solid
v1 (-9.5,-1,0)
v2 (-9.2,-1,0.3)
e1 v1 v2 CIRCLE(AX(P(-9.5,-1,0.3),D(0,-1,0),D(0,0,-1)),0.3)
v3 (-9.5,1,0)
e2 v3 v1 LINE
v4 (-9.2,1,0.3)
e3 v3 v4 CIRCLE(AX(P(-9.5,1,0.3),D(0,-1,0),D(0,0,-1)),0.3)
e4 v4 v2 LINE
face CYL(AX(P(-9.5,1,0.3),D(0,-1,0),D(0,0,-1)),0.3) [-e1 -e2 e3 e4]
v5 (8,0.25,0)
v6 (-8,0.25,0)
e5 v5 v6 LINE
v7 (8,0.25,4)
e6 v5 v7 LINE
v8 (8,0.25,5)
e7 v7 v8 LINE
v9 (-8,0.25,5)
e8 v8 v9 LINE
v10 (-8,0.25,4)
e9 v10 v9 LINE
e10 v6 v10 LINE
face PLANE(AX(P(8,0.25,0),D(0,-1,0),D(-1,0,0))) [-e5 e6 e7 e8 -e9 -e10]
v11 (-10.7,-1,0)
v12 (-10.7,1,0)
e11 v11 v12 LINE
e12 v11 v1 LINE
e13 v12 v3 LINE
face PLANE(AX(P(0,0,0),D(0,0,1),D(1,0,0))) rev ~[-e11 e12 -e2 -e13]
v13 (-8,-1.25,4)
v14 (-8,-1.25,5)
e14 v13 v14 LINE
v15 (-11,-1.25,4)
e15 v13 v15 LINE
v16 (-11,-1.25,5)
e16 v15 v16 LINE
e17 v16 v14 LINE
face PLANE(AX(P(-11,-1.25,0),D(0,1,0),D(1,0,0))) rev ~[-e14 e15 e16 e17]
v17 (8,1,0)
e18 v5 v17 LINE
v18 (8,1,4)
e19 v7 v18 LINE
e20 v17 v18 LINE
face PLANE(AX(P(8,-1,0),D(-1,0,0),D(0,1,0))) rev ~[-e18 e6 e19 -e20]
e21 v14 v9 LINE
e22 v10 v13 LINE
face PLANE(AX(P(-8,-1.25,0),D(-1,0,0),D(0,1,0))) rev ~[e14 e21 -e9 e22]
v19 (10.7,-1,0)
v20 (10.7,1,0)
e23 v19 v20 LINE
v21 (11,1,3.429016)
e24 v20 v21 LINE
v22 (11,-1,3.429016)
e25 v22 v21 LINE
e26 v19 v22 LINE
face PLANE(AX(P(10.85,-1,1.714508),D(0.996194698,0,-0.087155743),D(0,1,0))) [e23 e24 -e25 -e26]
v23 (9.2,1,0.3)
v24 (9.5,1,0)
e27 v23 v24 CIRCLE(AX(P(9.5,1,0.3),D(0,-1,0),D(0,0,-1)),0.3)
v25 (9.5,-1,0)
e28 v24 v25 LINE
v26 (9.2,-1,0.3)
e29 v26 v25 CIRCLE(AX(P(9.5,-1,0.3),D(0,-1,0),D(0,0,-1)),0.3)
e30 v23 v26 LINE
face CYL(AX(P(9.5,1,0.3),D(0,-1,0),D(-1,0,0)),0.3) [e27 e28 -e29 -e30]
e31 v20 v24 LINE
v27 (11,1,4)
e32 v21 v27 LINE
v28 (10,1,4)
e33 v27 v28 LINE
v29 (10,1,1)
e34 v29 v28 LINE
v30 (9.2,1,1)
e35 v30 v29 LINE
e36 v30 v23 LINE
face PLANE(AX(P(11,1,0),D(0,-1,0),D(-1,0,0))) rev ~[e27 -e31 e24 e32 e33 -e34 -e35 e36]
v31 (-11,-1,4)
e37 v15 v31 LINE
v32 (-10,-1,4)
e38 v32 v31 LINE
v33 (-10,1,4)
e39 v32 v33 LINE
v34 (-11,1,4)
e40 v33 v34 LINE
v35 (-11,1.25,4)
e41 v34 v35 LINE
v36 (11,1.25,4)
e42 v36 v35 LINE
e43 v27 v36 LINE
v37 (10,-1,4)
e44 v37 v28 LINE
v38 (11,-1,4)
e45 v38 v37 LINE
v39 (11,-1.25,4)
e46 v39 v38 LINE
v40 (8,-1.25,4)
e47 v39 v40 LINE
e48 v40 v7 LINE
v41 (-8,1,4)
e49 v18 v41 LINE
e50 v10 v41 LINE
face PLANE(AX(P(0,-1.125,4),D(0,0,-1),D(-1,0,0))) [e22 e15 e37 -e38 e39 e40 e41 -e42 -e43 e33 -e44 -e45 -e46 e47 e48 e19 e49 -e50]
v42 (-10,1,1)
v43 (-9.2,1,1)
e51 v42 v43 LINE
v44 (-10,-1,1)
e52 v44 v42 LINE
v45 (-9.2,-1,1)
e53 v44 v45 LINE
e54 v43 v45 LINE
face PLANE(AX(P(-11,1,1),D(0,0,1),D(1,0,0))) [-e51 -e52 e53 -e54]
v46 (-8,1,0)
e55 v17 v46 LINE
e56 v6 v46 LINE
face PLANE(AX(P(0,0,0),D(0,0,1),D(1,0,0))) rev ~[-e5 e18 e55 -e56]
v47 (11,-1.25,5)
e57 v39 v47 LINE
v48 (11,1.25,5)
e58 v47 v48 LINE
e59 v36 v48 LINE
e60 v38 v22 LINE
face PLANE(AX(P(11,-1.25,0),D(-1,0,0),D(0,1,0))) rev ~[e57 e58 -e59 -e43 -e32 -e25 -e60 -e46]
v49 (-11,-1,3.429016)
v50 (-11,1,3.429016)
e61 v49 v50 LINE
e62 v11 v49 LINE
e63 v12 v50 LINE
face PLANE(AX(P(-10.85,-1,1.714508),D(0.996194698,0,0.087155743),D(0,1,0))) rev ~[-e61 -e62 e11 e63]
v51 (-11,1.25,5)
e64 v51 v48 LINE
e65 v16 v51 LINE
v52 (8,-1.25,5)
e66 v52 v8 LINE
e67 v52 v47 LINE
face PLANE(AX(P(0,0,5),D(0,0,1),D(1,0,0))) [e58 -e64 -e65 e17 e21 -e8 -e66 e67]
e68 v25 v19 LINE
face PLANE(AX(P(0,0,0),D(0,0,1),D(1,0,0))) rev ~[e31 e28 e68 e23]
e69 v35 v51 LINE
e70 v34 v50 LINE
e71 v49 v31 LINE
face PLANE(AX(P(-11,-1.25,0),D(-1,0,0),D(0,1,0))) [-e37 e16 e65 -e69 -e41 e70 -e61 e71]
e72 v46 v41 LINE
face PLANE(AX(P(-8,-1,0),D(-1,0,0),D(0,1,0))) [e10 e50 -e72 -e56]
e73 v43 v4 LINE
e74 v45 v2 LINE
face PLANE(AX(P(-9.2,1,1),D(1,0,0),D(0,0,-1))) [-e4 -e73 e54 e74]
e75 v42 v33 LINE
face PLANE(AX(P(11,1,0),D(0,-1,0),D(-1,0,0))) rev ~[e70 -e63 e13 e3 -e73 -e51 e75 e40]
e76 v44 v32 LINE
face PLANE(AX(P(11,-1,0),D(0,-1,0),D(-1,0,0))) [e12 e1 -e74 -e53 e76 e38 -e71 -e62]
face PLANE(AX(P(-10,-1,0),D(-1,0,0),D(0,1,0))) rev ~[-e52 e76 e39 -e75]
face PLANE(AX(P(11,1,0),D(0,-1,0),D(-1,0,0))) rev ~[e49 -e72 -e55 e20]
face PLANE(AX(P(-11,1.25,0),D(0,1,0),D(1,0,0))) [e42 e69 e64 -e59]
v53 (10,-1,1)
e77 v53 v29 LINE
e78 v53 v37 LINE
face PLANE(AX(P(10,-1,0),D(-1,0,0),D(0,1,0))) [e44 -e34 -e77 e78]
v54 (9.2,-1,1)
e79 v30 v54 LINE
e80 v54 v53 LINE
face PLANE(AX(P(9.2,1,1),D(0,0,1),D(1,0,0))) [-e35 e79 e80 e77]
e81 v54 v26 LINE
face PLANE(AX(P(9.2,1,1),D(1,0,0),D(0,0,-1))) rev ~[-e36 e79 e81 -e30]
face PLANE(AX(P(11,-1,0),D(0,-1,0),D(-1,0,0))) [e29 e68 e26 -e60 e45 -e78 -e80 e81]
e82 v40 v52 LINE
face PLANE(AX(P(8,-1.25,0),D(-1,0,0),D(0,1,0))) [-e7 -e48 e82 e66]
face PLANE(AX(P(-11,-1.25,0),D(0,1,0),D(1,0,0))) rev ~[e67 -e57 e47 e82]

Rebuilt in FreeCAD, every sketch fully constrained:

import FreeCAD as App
import Part
import Sketcher
from FreeCAD import Vector
Q = App.Units.Quantity


def edges_at(feature, points):
    """Names of the edges that pass closest to the given points."""
    edges = feature.Shape.Edges
    near = lambda p: min(range(len(edges)), key=lambda i: edges[i].distToShape(Part.Vertex(*p))[0])
    return sorted({f"Edge{near(p) + 1}" for p in points})

doc = App.newDocument("Part")
body = doc.addObject("PartDesign::Body", "Body")

# Sketch on XY plane
sketch1 = body.newObject("Sketcher::SketchObject", "Sketch")
sketch1.AttachmentSupport = (doc.getObject("XY_Plane"), [""])
sketch1.MapMode = "FlatFace"
sketch1.addGeometry(Part.LineSegment(Vector(-11, 1.2, 0), Vector(-11, -1.2, 0)), False)
sketch1.addGeometry(Part.LineSegment(Vector(-11, -1.2, 0), Vector(11, -1.2, 0)), False)
sketch1.addGeometry(Part.LineSegment(Vector(11, -1.2, 0), Vector(11, 1.2, 0)), False)
sketch1.addGeometry(Part.LineSegment(Vector(11, 1.2, 0), Vector(-11, 1.2, 0)), False)
sketch1.addConstraint(Sketcher.Constraint("Coincident", 0, 2, 1, 1))
sketch1.addConstraint(Sketcher.Constraint("Coincident", 1, 2, 2, 1))
sketch1.addConstraint(Sketcher.Constraint("Coincident", 2, 2, 3, 1))
sketch1.addConstraint(Sketcher.Constraint("Coincident", 3, 2, 0, 1))
sketch1.addConstraint(Sketcher.Constraint("Vertical", 0))
sketch1.addConstraint(Sketcher.Constraint("Horizontal", 1))
sketch1.addConstraint(Sketcher.Constraint("Vertical", 2))
sketch1.addConstraint(Sketcher.Constraint("Horizontal", 3))
sketch1.addConstraint(Sketcher.Constraint("Symmetric", 0, 2, 2, 2, -1, 1))
sketch1.addConstraint(Sketcher.Constraint("DistanceX", 1, 1, 1, 2, Q("22 mm")))
sketch1.addConstraint(Sketcher.Constraint("DistanceY", 0, 2, 0, 1, Q("2.5 mm")))
pad1 = body.newObject("PartDesign::Pad", "Pad")
pad1.Profile = sketch1
pad1.Length = 5

# Sketch on XY plane
sketch2 = body.newObject("Sketcher::SketchObject", "Sketch001")
sketch2.AttachmentSupport = (doc.getObject("XY_Plane"), [""])
sketch2.MapMode = "FlatFace"
sketch2.addGeometry(Part.LineSegment(Vector(11, 1.25, 0), Vector(11, 1, 0)), False)
sketch2.addGeometry(Part.LineSegment(Vector(11, 1, 0), Vector(-11, 1, 0)), False)
sketch2.addGeometry(Part.LineSegment(Vector(-11, 1, 0), Vector(-11, 1.25, 0)), False)
sketch2.addGeometry(Part.LineSegment(Vector(-11, 1.25, 0), Vector(11, 1.25, 0)), False)
sketch2.addGeometry(Part.LineSegment(Vector(11, -1, 0), Vector(11, -1.25, 0)), False)
sketch2.addGeometry(Part.LineSegment(Vector(11, -1.25, 0), Vector(-11, -1.25, 0)), False)
sketch2.addGeometry(Part.LineSegment(Vector(-11, -1.25, 0), Vector(-11, -1, 0)), False)
sketch2.addGeometry(Part.LineSegment(Vector(-11, -1, 0), Vector(11, -1, 0)), False)
sketch2.addConstraint(Sketcher.Constraint("Coincident", 0, 2, 1, 1))
sketch2.addConstraint(Sketcher.Constraint("Coincident", 1, 2, 2, 1))
sketch2.addConstraint(Sketcher.Constraint("Coincident", 2, 2, 3, 1))
sketch2.addConstraint(Sketcher.Constraint("Coincident", 3, 2, 0, 1))
sketch2.addConstraint(Sketcher.Constraint("Coincident", 4, 2, 5, 1))
sketch2.addConstraint(Sketcher.Constraint("Coincident", 5, 2, 6, 1))
sketch2.addConstraint(Sketcher.Constraint("Coincident", 6, 2, 7, 1))
sketch2.addConstraint(Sketcher.Constraint("Coincident", 7, 2, 4, 1))
sketch2.addConstraint(Sketcher.Constraint("Vertical", 0))
sketch2.addConstraint(Sketcher.Constraint("Horizontal", 1))
sketch2.addConstraint(Sketcher.Constraint("Vertical", 2))
sketch2.addConstraint(Sketcher.Constraint("Horizontal", 3))
sketch2.addConstraint(Sketcher.Constraint("Vertical", 4))
sketch2.addConstraint(Sketcher.Constraint("Horizontal", 5))
sketch2.addConstraint(Sketcher.Constraint("Vertical", 6))
sketch2.addConstraint(Sketcher.Constraint("Horizontal", 7))
sketch2.addConstraint(Sketcher.Constraint("Symmetric", 2, 2, 4, 2, -1, 1))
sketch2.addConstraint(Sketcher.Constraint("Symmetric", 0, 2, 6, 2, -1, 1))
sketch2.addConstraint(Sketcher.Constraint("Vertical", 3, 2, 4, 2))
sketch2.addConstraint(Sketcher.Constraint("DistanceX", 1, 2, 1, 1, Q("22 mm")))
sketch2.addConstraint(Sketcher.Constraint("DistanceY", -1, 1, 0, 2, Q("1 mm")))
sketch2.addConstraint(Sketcher.Constraint("DistanceY", 0, 2, 0, 1, Q("0.25 mm")))
pocket1 = body.newObject("PartDesign::Pocket", "Pocket")
pocket1.Profile = sketch2
pocket1.Length = 4
pocket1.Reversed = True

# Sketch on XY plane
sketch3 = body.newObject("Sketcher::SketchObject", "Sketch002")
sketch3.AttachmentSupport = (doc.getObject("XY_Plane"), [""])
sketch3.MapMode = "FlatFace"
sketch3.addGeometry(Part.LineSegment(Vector(10, 1, 0), Vector(10, -1, 0)), False)
sketch3.addGeometry(Part.LineSegment(Vector(10, -1, 0), Vector(8, -1, 0)), False)
sketch3.addGeometry(Part.LineSegment(Vector(8, -1, 0), Vector(8, 1, 0)), False)
sketch3.addGeometry(Part.LineSegment(Vector(8, 1, 0), Vector(10, 1, 0)), False)
sketch3.addGeometry(Part.LineSegment(Vector(-8, 1, 0), Vector(-8, -1, 0)), False)
sketch3.addGeometry(Part.LineSegment(Vector(-8, -1, 0), Vector(-10, -1, 0)), False)
sketch3.addGeometry(Part.LineSegment(Vector(-10, -1, 0), Vector(-10, 1, 0)), False)
sketch3.addGeometry(Part.LineSegment(Vector(-10, 1, 0), Vector(-8, 1, 0)), False)
sketch3.addConstraint(Sketcher.Constraint("Coincident", 0, 2, 1, 1))
sketch3.addConstraint(Sketcher.Constraint("Coincident", 1, 2, 2, 1))
sketch3.addConstraint(Sketcher.Constraint("Coincident", 2, 2, 3, 1))
sketch3.addConstraint(Sketcher.Constraint("Coincident", 3, 2, 0, 1))
sketch3.addConstraint(Sketcher.Constraint("Coincident", 4, 2, 5, 1))
sketch3.addConstraint(Sketcher.Constraint("Coincident", 5, 2, 6, 1))
sketch3.addConstraint(Sketcher.Constraint("Coincident", 6, 2, 7, 1))
sketch3.addConstraint(Sketcher.Constraint("Coincident", 7, 2, 4, 1))
sketch3.addConstraint(Sketcher.Constraint("Vertical", 0))
sketch3.addConstraint(Sketcher.Constraint("Horizontal", 1))
sketch3.addConstraint(Sketcher.Constraint("Vertical", 2))
sketch3.addConstraint(Sketcher.Constraint("Horizontal", 3))
sketch3.addConstraint(Sketcher.Constraint("Vertical", 4))
sketch3.addConstraint(Sketcher.Constraint("Horizontal", 5))
sketch3.addConstraint(Sketcher.Constraint("Vertical", 6))
sketch3.addConstraint(Sketcher.Constraint("Horizontal", 7))
sketch3.addConstraint(Sketcher.Constraint("Symmetric", 2, 2, 4, 2, -1, 1))
sketch3.addConstraint(Sketcher.Constraint("Symmetric", 0, 2, 6, 2, -1, 1))
sketch3.addConstraint(Sketcher.Constraint("Horizontal", 1, 2, 4, 2))
sketch3.addConstraint(Sketcher.Constraint("Equal", 7, 0))
sketch3.addConstraint(Sketcher.Constraint("DistanceX", 1, 2, 1, 1, Q("2 mm")))
sketch3.addConstraint(Sketcher.Constraint("DistanceX", -1, 1, 0, 2, Q("10 mm")))
pocket2 = body.newObject("PartDesign::Pocket", "Pocket001")
pocket2.Profile = sketch3
pocket2.Length = 4
pocket2.Reversed = True

# Sketch on XY plane
sketch4 = body.newObject("Sketcher::SketchObject", "Sketch003")
sketch4.AttachmentSupport = (doc.getObject("XY_Plane"), [""])
sketch4.MapMode = "FlatFace"
sketch4.addGeometry(Part.LineSegment(Vector(8, 0.2, 0), Vector(8, -1.2, 0)), False)
sketch4.addGeometry(Part.LineSegment(Vector(8, -1.2, 0), Vector(-8, -1.2, 0)), False)
sketch4.addGeometry(Part.LineSegment(Vector(-8, -1.2, 0), Vector(-8, 0.2, 0)), False)
sketch4.addGeometry(Part.LineSegment(Vector(-8, 0.2, 0), Vector(8, 0.2, 0)), False)
sketch4.addConstraint(Sketcher.Constraint("Coincident", 0, 2, 1, 1))
sketch4.addConstraint(Sketcher.Constraint("Coincident", 1, 2, 2, 1))
sketch4.addConstraint(Sketcher.Constraint("Coincident", 2, 2, 3, 1))
sketch4.addConstraint(Sketcher.Constraint("Coincident", 3, 2, 0, 1))
sketch4.addConstraint(Sketcher.Constraint("Vertical", 0))
sketch4.addConstraint(Sketcher.Constraint("Horizontal", 1))
sketch4.addConstraint(Sketcher.Constraint("Vertical", 2))
sketch4.addConstraint(Sketcher.Constraint("Horizontal", 3))
sketch4.addConstraint(Sketcher.Constraint("DistanceX", 1, 2, 1, 1, Q("16 mm")))
sketch4.addConstraint(Sketcher.Constraint("DistanceY", 0, 2, 0, 1, Q("1.5 mm")))
sketch4.addConstraint(Sketcher.Constraint("DistanceX", -1, 1, 0, 2, Q("8 mm")))
sketch4.addConstraint(Sketcher.Constraint("DistanceY", 0, 2, -1, 1, Q("1.25 mm")))
pocket3 = body.newObject("PartDesign::Pocket", "Pocket002")
pocket3.Profile = sketch4
pocket3.Length = 5
pocket3.Reversed = True

# Sketch on XZ plane
sketch5 = body.newObject("Sketcher::SketchObject", "Sketch004")
sketch5.AttachmentSupport = (doc.getObject("XZ_Plane"), [""])
sketch5.MapMode = "FlatFace"
sketch5.AttachmentOffset = App.Placement(Vector(0, 0, -1), App.Rotation())
sketch5.addGeometry(Part.LineSegment(Vector(-11, 0, 0), Vector(-11, 1, 0)), False)
sketch5.addGeometry(Part.LineSegment(Vector(-11, 1, 0), Vector(-9.2, 1, 0)), False)
sketch5.addGeometry(Part.LineSegment(Vector(-9.2, 1, 0), Vector(-9.2, 0, 0)), False)
sketch5.addGeometry(Part.LineSegment(Vector(-9.2, 0, 0), Vector(-11, 0, 0)), False)
sketch5.addGeometry(Part.LineSegment(Vector(9.2, 0, 0), Vector(9.2, 1, 0)), False)
sketch5.addGeometry(Part.LineSegment(Vector(9.2, 1, 0), Vector(11, 1, 0)), False)
sketch5.addGeometry(Part.LineSegment(Vector(11, 1, 0), Vector(11, 0, 0)), False)
sketch5.addGeometry(Part.LineSegment(Vector(11, 0, 0), Vector(9.2, 0, 0)), False)
sketch5.addConstraint(Sketcher.Constraint("Coincident", 0, 2, 1, 1))
sketch5.addConstraint(Sketcher.Constraint("Coincident", 1, 2, 2, 1))
sketch5.addConstraint(Sketcher.Constraint("Coincident", 2, 2, 3, 1))
sketch5.addConstraint(Sketcher.Constraint("Coincident", 3, 2, 0, 1))
sketch5.addConstraint(Sketcher.Constraint("Coincident", 4, 2, 5, 1))
sketch5.addConstraint(Sketcher.Constraint("Coincident", 5, 2, 6, 1))
sketch5.addConstraint(Sketcher.Constraint("Coincident", 6, 2, 7, 1))
sketch5.addConstraint(Sketcher.Constraint("Coincident", 7, 2, 4, 1))
sketch5.addConstraint(Sketcher.Constraint("Vertical", 0))
sketch5.addConstraint(Sketcher.Constraint("Horizontal", 1))
sketch5.addConstraint(Sketcher.Constraint("Vertical", 2))
sketch5.addConstraint(Sketcher.Constraint("Horizontal", 3))
sketch5.addConstraint(Sketcher.Constraint("Vertical", 4))
sketch5.addConstraint(Sketcher.Constraint("Horizontal", 5))
sketch5.addConstraint(Sketcher.Constraint("Vertical", 6))
sketch5.addConstraint(Sketcher.Constraint("Horizontal", 7))
sketch5.addConstraint(Sketcher.Constraint("Symmetric", 3, 2, 6, 2, -1, 1))
sketch5.addConstraint(Sketcher.Constraint("Symmetric", 1, 2, 4, 2, -2))
sketch5.addConstraint(Sketcher.Constraint("PointOnObject", 2, 2, -1))
sketch5.addConstraint(Sketcher.Constraint("DistanceY", 0, 1, 0, 2, Q("1 mm")))
sketch5.addConstraint(Sketcher.Constraint("DistanceX", 1, 1, 1, 2, Q("1.8 mm")))
sketch5.addConstraint(Sketcher.Constraint("DistanceX", 0, 2, -1, 1, Q("11 mm")))
pad2 = body.newObject("PartDesign::Pad", "Pad001")
pad2.Profile = sketch5
pad2.Length = 2
doc.recompute()

fillet = body.newObject("PartDesign::Fillet", "Fillet")
fillet.Base = (pad2, edges_at(pad2, [(-9.2, 0, 0), (9.2, 0, 0)]))
fillet.Radius = 0.3
doc.recompute()

chamfer = body.newObject("PartDesign::Chamfer", "Chamfer")
chamfer.Base = (fillet, edges_at(fillet, [(11, 0, 0)]))
chamfer.ChamferType = "Two distances"
chamfer.Size = 0.3
chamfer.Size2 = 3.429016
chamfer.FlipDirection = True
doc.recompute()

chamfer2 = body.newObject("PartDesign::Chamfer", "Chamfer001")
chamfer2.Base = (chamfer, edges_at(chamfer, [(-11, 0, 0)]))
chamfer2.ChamferType = "Two distances"
chamfer2.Size = 0.3
chamfer2.Size2 = 3.429016
chamfer2.FlipDirection = True

doc.recompute()
